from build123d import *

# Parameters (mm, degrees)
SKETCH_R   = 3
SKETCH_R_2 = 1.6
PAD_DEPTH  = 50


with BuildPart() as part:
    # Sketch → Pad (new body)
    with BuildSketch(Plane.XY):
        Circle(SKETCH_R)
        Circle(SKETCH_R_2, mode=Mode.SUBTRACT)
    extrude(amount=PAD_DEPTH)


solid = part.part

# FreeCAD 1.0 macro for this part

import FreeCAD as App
import Part
import Sketcher
from FreeCAD import Vector

doc = App.newDocument("Part")
body = doc.addObject("PartDesign::Body", "Body")

# Sketch on XY plane
sketch1 = body.newObject("Sketcher::SketchObject", "Sketch")
sketch1.AttachmentSupport = (doc.getObject("XY_Plane"), [""])
sketch1.MapMode = "FlatFace"
sketch1.addGeometry([
    Part.Circle(Vector(0, 0, 0), Vector(0, 0, 1), 3),
    Part.Circle(Vector(0, 0, 0), Vector(0, 0, 1), 1.6),
], False)
sketch1.addConstraint([
    Sketcher.Constraint("Coincident", 0, 3, -1, 1),
    Sketcher.Constraint("Coincident", 1, 3, -1, 1),
    Sketcher.Constraint("Diameter", 0, 6.0),
    Sketcher.Constraint("Diameter", 1, 3.2),
])
pad1 = body.newObject("PartDesign::Pad", "Pad")
pad1.Profile = sketch1
pad1.Length = 50

doc.recompute()
